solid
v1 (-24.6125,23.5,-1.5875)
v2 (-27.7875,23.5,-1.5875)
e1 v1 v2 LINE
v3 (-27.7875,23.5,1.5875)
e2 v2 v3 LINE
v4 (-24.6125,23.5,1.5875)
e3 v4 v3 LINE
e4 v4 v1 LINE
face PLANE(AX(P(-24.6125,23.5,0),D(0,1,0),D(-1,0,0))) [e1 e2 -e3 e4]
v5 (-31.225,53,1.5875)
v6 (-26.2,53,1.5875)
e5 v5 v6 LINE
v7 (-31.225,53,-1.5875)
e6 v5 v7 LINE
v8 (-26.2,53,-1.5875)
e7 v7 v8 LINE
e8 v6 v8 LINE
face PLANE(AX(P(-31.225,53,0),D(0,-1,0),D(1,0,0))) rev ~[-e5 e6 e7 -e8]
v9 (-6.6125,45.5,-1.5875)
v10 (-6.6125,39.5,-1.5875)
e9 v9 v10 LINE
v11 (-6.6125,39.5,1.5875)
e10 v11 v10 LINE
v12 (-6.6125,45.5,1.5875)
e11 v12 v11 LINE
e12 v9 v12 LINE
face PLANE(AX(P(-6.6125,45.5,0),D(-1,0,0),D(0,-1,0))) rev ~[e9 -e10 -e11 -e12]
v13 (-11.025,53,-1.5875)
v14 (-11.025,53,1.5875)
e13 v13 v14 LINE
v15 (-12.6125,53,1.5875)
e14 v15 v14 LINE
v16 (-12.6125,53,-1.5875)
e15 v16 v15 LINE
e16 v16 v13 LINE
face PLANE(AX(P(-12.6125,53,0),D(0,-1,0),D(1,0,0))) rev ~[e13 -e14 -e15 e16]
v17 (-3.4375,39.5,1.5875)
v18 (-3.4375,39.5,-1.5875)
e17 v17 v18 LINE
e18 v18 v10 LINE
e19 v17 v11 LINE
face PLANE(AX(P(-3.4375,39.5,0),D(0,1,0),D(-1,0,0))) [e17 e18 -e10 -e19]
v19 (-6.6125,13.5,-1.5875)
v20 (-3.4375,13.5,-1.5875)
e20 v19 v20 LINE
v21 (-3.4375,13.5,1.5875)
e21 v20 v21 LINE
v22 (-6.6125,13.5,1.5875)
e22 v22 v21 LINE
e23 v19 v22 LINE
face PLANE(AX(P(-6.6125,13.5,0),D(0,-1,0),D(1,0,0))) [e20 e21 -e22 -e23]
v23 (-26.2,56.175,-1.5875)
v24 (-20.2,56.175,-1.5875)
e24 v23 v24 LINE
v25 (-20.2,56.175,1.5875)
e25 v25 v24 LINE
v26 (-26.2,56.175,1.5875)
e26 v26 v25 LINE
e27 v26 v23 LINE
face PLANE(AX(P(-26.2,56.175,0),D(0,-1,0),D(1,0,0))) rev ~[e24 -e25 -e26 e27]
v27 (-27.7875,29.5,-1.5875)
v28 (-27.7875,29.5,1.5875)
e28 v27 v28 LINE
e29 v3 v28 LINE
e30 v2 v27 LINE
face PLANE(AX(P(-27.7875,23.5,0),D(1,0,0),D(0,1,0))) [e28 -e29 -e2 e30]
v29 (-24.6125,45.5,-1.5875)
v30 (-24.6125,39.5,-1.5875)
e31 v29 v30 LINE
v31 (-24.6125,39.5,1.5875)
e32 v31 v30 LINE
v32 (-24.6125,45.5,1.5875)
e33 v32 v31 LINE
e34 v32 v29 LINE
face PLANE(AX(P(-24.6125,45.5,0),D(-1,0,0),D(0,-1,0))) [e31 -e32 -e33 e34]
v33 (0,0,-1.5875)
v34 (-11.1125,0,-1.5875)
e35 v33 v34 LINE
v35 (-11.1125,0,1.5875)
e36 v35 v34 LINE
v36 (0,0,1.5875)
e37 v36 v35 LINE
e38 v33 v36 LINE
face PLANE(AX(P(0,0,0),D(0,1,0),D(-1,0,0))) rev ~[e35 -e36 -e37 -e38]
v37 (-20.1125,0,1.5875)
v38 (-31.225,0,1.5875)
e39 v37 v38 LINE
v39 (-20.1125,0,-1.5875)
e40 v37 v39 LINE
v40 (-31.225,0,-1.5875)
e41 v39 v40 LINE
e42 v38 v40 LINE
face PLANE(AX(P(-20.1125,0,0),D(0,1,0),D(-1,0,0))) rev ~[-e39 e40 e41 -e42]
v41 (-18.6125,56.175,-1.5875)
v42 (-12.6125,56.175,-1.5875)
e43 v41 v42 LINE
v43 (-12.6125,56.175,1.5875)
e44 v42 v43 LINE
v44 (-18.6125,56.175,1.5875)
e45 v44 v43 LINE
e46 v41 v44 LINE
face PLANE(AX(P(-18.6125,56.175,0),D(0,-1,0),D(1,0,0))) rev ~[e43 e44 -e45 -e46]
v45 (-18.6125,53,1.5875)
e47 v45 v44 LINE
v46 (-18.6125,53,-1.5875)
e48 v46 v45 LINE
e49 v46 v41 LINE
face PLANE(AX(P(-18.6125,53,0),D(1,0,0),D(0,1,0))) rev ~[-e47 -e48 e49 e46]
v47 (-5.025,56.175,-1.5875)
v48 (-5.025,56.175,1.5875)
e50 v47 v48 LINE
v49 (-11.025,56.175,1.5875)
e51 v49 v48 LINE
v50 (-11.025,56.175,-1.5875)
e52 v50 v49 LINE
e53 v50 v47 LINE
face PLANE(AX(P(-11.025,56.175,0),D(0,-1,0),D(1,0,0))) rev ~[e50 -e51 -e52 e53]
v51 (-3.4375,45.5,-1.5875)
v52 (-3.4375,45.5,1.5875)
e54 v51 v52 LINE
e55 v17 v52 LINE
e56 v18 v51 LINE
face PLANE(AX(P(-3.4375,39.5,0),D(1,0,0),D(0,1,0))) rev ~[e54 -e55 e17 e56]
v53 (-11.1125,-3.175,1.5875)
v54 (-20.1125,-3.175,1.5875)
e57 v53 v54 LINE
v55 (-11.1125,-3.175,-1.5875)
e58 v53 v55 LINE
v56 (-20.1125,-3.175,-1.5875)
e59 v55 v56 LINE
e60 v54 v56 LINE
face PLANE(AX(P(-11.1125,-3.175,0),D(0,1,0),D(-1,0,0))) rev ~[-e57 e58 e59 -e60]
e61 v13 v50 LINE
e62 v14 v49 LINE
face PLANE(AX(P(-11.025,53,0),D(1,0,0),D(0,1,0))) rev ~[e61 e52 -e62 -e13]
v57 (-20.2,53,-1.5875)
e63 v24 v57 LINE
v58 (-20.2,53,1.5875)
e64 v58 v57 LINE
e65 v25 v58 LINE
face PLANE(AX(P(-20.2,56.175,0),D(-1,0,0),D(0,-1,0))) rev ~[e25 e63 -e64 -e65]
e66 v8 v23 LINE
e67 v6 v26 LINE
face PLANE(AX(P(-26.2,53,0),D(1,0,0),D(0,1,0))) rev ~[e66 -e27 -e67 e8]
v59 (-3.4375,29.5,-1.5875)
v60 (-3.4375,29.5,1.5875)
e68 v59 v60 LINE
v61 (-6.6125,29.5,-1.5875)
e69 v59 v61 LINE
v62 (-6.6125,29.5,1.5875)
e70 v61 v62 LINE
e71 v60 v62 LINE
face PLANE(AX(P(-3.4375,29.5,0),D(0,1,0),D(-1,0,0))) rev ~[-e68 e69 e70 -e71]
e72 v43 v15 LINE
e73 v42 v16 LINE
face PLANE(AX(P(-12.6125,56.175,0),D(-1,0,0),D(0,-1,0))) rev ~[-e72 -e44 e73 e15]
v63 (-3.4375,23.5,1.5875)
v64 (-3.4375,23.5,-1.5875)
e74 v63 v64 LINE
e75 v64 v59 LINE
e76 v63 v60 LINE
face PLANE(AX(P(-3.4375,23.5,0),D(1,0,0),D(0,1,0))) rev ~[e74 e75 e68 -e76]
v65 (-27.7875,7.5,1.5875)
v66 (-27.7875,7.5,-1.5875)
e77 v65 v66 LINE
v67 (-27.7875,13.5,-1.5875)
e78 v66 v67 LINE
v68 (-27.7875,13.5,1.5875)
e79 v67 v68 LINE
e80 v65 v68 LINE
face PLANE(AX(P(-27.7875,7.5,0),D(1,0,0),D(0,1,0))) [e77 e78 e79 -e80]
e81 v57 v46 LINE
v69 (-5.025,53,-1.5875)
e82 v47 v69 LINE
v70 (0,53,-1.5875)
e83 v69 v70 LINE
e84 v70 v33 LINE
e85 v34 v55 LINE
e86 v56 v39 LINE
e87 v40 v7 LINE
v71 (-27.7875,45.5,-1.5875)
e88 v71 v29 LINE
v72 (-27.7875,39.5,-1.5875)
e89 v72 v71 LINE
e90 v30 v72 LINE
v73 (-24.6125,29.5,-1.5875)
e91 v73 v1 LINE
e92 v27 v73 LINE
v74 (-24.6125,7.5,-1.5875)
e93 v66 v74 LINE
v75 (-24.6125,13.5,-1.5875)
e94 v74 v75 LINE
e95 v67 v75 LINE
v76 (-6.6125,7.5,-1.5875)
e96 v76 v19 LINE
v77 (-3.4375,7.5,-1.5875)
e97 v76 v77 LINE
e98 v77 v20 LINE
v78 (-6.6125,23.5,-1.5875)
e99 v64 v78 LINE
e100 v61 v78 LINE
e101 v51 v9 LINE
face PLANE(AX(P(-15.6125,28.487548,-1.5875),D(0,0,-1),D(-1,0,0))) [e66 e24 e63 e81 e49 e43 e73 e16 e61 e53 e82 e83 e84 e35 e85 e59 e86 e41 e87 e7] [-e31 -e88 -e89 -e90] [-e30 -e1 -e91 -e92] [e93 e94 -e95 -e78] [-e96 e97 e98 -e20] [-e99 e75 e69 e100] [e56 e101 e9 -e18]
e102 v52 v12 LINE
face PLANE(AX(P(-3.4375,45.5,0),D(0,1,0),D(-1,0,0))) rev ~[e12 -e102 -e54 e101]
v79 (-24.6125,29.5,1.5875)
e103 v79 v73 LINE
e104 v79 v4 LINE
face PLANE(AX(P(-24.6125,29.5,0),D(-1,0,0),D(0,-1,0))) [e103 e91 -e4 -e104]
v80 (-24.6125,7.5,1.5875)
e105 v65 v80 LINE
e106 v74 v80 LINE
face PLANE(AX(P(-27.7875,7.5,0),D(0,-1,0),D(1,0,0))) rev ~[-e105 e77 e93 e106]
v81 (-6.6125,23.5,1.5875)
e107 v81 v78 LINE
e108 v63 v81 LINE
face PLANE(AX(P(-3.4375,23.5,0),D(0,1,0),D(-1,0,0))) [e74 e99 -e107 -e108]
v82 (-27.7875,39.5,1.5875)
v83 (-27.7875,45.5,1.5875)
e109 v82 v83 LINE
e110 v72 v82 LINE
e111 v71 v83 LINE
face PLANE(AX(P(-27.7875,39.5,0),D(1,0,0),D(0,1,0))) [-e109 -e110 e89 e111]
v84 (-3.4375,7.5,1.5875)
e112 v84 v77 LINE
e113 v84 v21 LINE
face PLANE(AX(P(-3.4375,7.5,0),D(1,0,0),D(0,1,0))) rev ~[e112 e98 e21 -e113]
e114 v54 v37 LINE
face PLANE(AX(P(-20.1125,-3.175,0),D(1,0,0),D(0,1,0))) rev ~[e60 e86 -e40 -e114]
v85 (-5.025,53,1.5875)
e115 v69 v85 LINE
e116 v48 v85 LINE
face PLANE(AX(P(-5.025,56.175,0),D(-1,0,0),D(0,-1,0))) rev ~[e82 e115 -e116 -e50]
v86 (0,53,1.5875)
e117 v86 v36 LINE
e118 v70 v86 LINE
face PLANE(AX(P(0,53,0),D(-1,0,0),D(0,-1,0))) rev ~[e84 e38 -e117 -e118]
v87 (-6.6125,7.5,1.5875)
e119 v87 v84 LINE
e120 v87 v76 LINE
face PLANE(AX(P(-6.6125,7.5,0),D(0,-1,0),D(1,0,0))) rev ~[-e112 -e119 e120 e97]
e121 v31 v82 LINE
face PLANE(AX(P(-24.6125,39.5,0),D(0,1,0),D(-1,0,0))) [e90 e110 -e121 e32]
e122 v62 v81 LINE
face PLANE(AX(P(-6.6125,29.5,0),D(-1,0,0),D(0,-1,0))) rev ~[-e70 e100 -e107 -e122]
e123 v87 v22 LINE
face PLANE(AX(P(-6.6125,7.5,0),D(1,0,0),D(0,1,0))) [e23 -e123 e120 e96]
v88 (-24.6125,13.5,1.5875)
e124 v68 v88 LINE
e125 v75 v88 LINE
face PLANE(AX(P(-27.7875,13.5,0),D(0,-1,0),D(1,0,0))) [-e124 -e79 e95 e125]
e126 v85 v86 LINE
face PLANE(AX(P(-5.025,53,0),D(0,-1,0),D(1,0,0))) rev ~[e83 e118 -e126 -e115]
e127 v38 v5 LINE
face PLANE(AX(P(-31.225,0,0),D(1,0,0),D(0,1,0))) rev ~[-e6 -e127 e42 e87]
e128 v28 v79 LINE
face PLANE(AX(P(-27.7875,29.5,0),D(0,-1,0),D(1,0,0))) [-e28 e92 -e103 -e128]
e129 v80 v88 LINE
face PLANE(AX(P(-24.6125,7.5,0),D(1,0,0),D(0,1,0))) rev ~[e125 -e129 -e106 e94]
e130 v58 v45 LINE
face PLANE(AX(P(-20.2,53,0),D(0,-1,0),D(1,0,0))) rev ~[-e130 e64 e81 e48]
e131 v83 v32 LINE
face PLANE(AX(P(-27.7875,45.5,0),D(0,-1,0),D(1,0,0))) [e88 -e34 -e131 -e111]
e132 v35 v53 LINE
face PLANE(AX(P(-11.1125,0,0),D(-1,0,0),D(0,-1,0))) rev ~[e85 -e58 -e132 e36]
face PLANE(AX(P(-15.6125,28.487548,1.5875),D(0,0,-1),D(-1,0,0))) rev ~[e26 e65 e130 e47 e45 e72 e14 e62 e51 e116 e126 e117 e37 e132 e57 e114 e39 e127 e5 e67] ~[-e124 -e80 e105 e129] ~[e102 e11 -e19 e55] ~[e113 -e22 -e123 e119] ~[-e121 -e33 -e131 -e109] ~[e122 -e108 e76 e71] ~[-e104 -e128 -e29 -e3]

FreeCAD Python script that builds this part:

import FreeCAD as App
import Part
import Sketcher
from FreeCAD import Vector


def add_polygon(sketch, points):
    """Adds a closed chain of lines whose ends are joined by coincident constraints."""
    first, n = sketch.GeometryCount, len(points)
    for a, b in zip(points, points[1:] + points[:1]):
        sketch.addGeometry(Part.LineSegment(App.Vector(*a, 0), App.Vector(*b, 0)), False)
    for i in range(n):
        sketch.addConstraint(Sketcher.Constraint("Coincident", first + i, 2, first + (i + 1) % n, 1))

doc = App.newDocument("Part")
body = doc.addObject("PartDesign::Body", "Body")

# Sketch on XY plane
sketch1 = body.newObject("Sketcher::SketchObject", "Sketch")
sketch1.AttachmentSupport = (doc.getObject("XY_Plane"), [""])
sketch1.MapMode = "FlatFace"
add_polygon(sketch1, [(-11.1, 0), (0, 0), (0, 53), (-5, 53), (-5, 56.2), (-11, 56.2), (-11, 53), (-12.6, 53), (-12.6, 56.2), (-18.6, 56.2), (-18.6, 53), (-20.2, 53), (-20.2, 56.2), (-26.2, 56.2), (-26.2, 53), (-31.2, 53), (-31.2, 0), (-20.1, 0), (-20.1, -3.2), (-11.1, -3.2)])  # lines 0-19
add_polygon(sketch1, [(-6.6, 7.5), (-6.6, 13.5), (-3.4, 13.5), (-3.4, 7.5)])  # lines 20-23
add_polygon(sketch1, [(-27.8, 7.5), (-27.8, 13.5), (-24.6, 13.5), (-24.6, 7.5)])  # lines 24-27
add_polygon(sketch1, [(-6.6, 23.5), (-6.6, 29.5), (-3.4, 29.5), (-3.4, 23.5)])  # lines 28-31
add_polygon(sketch1, [(-6.6, 39.5), (-6.6, 45.5), (-3.4, 45.5), (-3.4, 39.5)])  # lines 32-35
add_polygon(sketch1, [(-24.6, 23.5), (-27.8, 23.5), (-27.8, 29.5), (-24.6, 29.5)])  # lines 36-39
add_polygon(sketch1, [(-24.6, 39.5), (-27.8, 39.5), (-27.8, 45.5), (-24.6, 45.5)])  # lines 40-43
sketch1.addConstraint(Sketcher.Constraint("Horizontal", 0))
sketch1.addConstraint(Sketcher.Constraint("Vertical", 1))
sketch1.addConstraint(Sketcher.Constraint("Horizontal", 2))
sketch1.addConstraint(Sketcher.Constraint("Vertical", 3))
sketch1.addConstraint(Sketcher.Constraint("Horizontal", 4))
sketch1.addConstraint(Sketcher.Constraint("Vertical", 5))
sketch1.addConstraint(Sketcher.Constraint("Horizontal", 6))
sketch1.addConstraint(Sketcher.Constraint("Vertical", 7))
sketch1.addConstraint(Sketcher.Constraint("Horizontal", 8))
sketch1.addConstraint(Sketcher.Constraint("Vertical", 9))
sketch1.addConstraint(Sketcher.Constraint("Horizontal", 10))
sketch1.addConstraint(Sketcher.Constraint("Vertical", 11))
sketch1.addConstraint(Sketcher.Constraint("Horizontal", 12))
sketch1.addConstraint(Sketcher.Constraint("Vertical", 13))
sketch1.addConstraint(Sketcher.Constraint("Horizontal", 14))
sketch1.addConstraint(Sketcher.Constraint("Vertical", 15))
sketch1.addConstraint(Sketcher.Constraint("Horizontal", 16))
sketch1.addConstraint(Sketcher.Constraint("Vertical", 17))
sketch1.addConstraint(Sketcher.Constraint("Horizontal", 18))
sketch1.addConstraint(Sketcher.Constraint("Vertical", 19))
sketch1.addConstraint(Sketcher.Constraint("Vertical", 20))
sketch1.addConstraint(Sketcher.Constraint("Horizontal", 21))
sketch1.addConstraint(Sketcher.Constraint("Vertical", 22))
sketch1.addConstraint(Sketcher.Constraint("Horizontal", 23))
sketch1.addConstraint(Sketcher.Constraint("Vertical", 24))
sketch1.addConstraint(Sketcher.Constraint("Horizontal", 25))
sketch1.addConstraint(Sketcher.Constraint("Vertical", 26))
sketch1.addConstraint(Sketcher.Constraint("Horizontal", 27))
sketch1.addConstraint(Sketcher.Constraint("Vertical", 28))
sketch1.addConstraint(Sketcher.Constraint("Horizontal", 29))
sketch1.addConstraint(Sketcher.Constraint("Vertical", 30))
sketch1.addConstraint(Sketcher.Constraint("Horizontal", 31))
sketch1.addConstraint(Sketcher.Constraint("Vertical", 32))
sketch1.addConstraint(Sketcher.Constraint("Horizontal", 33))
sketch1.addConstraint(Sketcher.Constraint("Vertical", 34))
sketch1.addConstraint(Sketcher.Constraint("Horizontal", 35))
sketch1.addConstraint(Sketcher.Constraint("Horizontal", 36))
sketch1.addConstraint(Sketcher.Constraint("Vertical", 37))
sketch1.addConstraint(Sketcher.Constraint("Horizontal", 38))
sketch1.addConstraint(Sketcher.Constraint("Vertical", 39))
sketch1.addConstraint(Sketcher.Constraint("Horizontal", 40))
sketch1.addConstraint(Sketcher.Constraint("Vertical", 41))
sketch1.addConstraint(Sketcher.Constraint("Horizontal", 42))
sketch1.addConstraint(Sketcher.Constraint("Vertical", 43))
sketch1.addConstraint(Sketcher.Constraint("Coincident", 0, 2, -1, 1))
sketch1.addConstraint(Sketcher.Constraint("PointOnObject", 15, 2, -1))
sketch1.addConstraint(Sketcher.Constraint("Horizontal", 2, 2, 5, 2))
sketch1.addConstraint(Sketcher.Constraint("Horizontal", 4, 2, 7, 2))
sketch1.addConstraint(Sketcher.Constraint("Horizontal", 6, 2, 9, 2))
sketch1.addConstraint(Sketcher.Constraint("Horizontal", 8, 2, 11, 2))
sketch1.addConstraint(Sketcher.Constraint("Horizontal", 10, 2, 13, 2))
sketch1.addConstraint(Sketcher.Constraint("Horizontal", 21, 2, 24, 2))
sketch1.addConstraint(Sketcher.Constraint("Horizontal", 23, 2, 26, 2))
sketch1.addConstraint(Sketcher.Constraint("Horizontal", 31, 2, 36, 2))
sketch1.addConstraint(Sketcher.Constraint("Horizontal", 29, 2, 37, 2))
sketch1.addConstraint(Sketcher.Constraint("Horizontal", 35, 2, 40, 2))
sketch1.addConstraint(Sketcher.Constraint("Horizontal", 33, 2, 41, 2))
sketch1.addConstraint(Sketcher.Constraint("Vertical", 23, 2, 28, 2))
sketch1.addConstraint(Sketcher.Constraint("Vertical", 22, 2, 29, 2))
sketch1.addConstraint(Sketcher.Constraint("Vertical", 31, 2, 32, 2))
sketch1.addConstraint(Sketcher.Constraint("Vertical", 30, 2, 33, 2))
sketch1.addConstraint(Sketcher.Constraint("Vertical", 27, 2, 36, 2))
sketch1.addConstraint(Sketcher.Constraint("Vertical", 26, 2, 38, 2))
sketch1.addConstraint(Sketcher.Constraint("Vertical", 37, 2, 40, 2))
sketch1.addConstraint(Sketcher.Constraint("Vertical", 39, 2, 42, 2))
sketch1.addConstraint(Sketcher.Constraint("Equal", 4, 8))
sketch1.addConstraint(Sketcher.Constraint("Equal", 6, 10))
sketch1.addConstraint(Sketcher.Constraint("Equal", 8, 12))
sketch1.addConstraint(Sketcher.Constraint("Equal", 2, 14))
sketch1.addConstraint(Sketcher.Constraint("Equal", 0, 16))
sketch1.addConstraint(Sketcher.Constraint("Equal", 23, 25))
sketch1.addConstraint(Sketcher.Constraint("Equal", 42, 3))
sketch1.addConstraint(Sketcher.Constraint("Equal", 13, 17))
sketch1.addConstraint(Sketcher.Constraint("Equal", 12, 20))
sketch1.addConstraint(Sketcher.Constraint("Equal", 26, 28))
sketch1.addConstraint(Sketcher.Constraint("Equal", 30, 32))
sketch1.addConstraint(Sketcher.Constraint("DistanceX", 4, 2, 4, 1, 6.0))
sketch1.addConstraint(Sketcher.Constraint("DistanceX", 18, 1, 18, 2, 9.0))
sketch1.addConstraint(Sketcher.Constraint("DistanceY", 1, 1, 1, 2, 53.0))
sketch1.addConstraint(Sketcher.Constraint("DistanceX", 25, 2, 20, 2, 18.0))
sketch1.addConstraint(Sketcher.Constraint("DistanceY", 20, 2, 28, 2, 16.0))
sketch1.addConstraint(Sketcher.Constraint("DistanceX", 6, 2, 32, 2, 6.0))
sketch1.addConstraint(Sketcher.Constraint("DistanceY", 29, 2, 34, 2, 10.0))
sketch1.addConstraint(Sketcher.Constraint("DistanceX", 10, 2, -1, 1, 20.2))
sketch1.addConstraint(Sketcher.Constraint("DistanceY", -1, 1, 20, 2, 13.5))
sketch1.addConstraint(Sketcher.Constraint("DistanceX", 2, 2, 2, 1, 5.025))
sketch1.addConstraint(Sketcher.Constraint("DistanceX", 21, 1, 21, 2, 3.175))
pad1 = body.newObject("PartDesign::Pad", "Pad")
pad1.Profile = sketch1
pad1.Length = 3.175
pad1.Midplane = True

doc.recompute()
